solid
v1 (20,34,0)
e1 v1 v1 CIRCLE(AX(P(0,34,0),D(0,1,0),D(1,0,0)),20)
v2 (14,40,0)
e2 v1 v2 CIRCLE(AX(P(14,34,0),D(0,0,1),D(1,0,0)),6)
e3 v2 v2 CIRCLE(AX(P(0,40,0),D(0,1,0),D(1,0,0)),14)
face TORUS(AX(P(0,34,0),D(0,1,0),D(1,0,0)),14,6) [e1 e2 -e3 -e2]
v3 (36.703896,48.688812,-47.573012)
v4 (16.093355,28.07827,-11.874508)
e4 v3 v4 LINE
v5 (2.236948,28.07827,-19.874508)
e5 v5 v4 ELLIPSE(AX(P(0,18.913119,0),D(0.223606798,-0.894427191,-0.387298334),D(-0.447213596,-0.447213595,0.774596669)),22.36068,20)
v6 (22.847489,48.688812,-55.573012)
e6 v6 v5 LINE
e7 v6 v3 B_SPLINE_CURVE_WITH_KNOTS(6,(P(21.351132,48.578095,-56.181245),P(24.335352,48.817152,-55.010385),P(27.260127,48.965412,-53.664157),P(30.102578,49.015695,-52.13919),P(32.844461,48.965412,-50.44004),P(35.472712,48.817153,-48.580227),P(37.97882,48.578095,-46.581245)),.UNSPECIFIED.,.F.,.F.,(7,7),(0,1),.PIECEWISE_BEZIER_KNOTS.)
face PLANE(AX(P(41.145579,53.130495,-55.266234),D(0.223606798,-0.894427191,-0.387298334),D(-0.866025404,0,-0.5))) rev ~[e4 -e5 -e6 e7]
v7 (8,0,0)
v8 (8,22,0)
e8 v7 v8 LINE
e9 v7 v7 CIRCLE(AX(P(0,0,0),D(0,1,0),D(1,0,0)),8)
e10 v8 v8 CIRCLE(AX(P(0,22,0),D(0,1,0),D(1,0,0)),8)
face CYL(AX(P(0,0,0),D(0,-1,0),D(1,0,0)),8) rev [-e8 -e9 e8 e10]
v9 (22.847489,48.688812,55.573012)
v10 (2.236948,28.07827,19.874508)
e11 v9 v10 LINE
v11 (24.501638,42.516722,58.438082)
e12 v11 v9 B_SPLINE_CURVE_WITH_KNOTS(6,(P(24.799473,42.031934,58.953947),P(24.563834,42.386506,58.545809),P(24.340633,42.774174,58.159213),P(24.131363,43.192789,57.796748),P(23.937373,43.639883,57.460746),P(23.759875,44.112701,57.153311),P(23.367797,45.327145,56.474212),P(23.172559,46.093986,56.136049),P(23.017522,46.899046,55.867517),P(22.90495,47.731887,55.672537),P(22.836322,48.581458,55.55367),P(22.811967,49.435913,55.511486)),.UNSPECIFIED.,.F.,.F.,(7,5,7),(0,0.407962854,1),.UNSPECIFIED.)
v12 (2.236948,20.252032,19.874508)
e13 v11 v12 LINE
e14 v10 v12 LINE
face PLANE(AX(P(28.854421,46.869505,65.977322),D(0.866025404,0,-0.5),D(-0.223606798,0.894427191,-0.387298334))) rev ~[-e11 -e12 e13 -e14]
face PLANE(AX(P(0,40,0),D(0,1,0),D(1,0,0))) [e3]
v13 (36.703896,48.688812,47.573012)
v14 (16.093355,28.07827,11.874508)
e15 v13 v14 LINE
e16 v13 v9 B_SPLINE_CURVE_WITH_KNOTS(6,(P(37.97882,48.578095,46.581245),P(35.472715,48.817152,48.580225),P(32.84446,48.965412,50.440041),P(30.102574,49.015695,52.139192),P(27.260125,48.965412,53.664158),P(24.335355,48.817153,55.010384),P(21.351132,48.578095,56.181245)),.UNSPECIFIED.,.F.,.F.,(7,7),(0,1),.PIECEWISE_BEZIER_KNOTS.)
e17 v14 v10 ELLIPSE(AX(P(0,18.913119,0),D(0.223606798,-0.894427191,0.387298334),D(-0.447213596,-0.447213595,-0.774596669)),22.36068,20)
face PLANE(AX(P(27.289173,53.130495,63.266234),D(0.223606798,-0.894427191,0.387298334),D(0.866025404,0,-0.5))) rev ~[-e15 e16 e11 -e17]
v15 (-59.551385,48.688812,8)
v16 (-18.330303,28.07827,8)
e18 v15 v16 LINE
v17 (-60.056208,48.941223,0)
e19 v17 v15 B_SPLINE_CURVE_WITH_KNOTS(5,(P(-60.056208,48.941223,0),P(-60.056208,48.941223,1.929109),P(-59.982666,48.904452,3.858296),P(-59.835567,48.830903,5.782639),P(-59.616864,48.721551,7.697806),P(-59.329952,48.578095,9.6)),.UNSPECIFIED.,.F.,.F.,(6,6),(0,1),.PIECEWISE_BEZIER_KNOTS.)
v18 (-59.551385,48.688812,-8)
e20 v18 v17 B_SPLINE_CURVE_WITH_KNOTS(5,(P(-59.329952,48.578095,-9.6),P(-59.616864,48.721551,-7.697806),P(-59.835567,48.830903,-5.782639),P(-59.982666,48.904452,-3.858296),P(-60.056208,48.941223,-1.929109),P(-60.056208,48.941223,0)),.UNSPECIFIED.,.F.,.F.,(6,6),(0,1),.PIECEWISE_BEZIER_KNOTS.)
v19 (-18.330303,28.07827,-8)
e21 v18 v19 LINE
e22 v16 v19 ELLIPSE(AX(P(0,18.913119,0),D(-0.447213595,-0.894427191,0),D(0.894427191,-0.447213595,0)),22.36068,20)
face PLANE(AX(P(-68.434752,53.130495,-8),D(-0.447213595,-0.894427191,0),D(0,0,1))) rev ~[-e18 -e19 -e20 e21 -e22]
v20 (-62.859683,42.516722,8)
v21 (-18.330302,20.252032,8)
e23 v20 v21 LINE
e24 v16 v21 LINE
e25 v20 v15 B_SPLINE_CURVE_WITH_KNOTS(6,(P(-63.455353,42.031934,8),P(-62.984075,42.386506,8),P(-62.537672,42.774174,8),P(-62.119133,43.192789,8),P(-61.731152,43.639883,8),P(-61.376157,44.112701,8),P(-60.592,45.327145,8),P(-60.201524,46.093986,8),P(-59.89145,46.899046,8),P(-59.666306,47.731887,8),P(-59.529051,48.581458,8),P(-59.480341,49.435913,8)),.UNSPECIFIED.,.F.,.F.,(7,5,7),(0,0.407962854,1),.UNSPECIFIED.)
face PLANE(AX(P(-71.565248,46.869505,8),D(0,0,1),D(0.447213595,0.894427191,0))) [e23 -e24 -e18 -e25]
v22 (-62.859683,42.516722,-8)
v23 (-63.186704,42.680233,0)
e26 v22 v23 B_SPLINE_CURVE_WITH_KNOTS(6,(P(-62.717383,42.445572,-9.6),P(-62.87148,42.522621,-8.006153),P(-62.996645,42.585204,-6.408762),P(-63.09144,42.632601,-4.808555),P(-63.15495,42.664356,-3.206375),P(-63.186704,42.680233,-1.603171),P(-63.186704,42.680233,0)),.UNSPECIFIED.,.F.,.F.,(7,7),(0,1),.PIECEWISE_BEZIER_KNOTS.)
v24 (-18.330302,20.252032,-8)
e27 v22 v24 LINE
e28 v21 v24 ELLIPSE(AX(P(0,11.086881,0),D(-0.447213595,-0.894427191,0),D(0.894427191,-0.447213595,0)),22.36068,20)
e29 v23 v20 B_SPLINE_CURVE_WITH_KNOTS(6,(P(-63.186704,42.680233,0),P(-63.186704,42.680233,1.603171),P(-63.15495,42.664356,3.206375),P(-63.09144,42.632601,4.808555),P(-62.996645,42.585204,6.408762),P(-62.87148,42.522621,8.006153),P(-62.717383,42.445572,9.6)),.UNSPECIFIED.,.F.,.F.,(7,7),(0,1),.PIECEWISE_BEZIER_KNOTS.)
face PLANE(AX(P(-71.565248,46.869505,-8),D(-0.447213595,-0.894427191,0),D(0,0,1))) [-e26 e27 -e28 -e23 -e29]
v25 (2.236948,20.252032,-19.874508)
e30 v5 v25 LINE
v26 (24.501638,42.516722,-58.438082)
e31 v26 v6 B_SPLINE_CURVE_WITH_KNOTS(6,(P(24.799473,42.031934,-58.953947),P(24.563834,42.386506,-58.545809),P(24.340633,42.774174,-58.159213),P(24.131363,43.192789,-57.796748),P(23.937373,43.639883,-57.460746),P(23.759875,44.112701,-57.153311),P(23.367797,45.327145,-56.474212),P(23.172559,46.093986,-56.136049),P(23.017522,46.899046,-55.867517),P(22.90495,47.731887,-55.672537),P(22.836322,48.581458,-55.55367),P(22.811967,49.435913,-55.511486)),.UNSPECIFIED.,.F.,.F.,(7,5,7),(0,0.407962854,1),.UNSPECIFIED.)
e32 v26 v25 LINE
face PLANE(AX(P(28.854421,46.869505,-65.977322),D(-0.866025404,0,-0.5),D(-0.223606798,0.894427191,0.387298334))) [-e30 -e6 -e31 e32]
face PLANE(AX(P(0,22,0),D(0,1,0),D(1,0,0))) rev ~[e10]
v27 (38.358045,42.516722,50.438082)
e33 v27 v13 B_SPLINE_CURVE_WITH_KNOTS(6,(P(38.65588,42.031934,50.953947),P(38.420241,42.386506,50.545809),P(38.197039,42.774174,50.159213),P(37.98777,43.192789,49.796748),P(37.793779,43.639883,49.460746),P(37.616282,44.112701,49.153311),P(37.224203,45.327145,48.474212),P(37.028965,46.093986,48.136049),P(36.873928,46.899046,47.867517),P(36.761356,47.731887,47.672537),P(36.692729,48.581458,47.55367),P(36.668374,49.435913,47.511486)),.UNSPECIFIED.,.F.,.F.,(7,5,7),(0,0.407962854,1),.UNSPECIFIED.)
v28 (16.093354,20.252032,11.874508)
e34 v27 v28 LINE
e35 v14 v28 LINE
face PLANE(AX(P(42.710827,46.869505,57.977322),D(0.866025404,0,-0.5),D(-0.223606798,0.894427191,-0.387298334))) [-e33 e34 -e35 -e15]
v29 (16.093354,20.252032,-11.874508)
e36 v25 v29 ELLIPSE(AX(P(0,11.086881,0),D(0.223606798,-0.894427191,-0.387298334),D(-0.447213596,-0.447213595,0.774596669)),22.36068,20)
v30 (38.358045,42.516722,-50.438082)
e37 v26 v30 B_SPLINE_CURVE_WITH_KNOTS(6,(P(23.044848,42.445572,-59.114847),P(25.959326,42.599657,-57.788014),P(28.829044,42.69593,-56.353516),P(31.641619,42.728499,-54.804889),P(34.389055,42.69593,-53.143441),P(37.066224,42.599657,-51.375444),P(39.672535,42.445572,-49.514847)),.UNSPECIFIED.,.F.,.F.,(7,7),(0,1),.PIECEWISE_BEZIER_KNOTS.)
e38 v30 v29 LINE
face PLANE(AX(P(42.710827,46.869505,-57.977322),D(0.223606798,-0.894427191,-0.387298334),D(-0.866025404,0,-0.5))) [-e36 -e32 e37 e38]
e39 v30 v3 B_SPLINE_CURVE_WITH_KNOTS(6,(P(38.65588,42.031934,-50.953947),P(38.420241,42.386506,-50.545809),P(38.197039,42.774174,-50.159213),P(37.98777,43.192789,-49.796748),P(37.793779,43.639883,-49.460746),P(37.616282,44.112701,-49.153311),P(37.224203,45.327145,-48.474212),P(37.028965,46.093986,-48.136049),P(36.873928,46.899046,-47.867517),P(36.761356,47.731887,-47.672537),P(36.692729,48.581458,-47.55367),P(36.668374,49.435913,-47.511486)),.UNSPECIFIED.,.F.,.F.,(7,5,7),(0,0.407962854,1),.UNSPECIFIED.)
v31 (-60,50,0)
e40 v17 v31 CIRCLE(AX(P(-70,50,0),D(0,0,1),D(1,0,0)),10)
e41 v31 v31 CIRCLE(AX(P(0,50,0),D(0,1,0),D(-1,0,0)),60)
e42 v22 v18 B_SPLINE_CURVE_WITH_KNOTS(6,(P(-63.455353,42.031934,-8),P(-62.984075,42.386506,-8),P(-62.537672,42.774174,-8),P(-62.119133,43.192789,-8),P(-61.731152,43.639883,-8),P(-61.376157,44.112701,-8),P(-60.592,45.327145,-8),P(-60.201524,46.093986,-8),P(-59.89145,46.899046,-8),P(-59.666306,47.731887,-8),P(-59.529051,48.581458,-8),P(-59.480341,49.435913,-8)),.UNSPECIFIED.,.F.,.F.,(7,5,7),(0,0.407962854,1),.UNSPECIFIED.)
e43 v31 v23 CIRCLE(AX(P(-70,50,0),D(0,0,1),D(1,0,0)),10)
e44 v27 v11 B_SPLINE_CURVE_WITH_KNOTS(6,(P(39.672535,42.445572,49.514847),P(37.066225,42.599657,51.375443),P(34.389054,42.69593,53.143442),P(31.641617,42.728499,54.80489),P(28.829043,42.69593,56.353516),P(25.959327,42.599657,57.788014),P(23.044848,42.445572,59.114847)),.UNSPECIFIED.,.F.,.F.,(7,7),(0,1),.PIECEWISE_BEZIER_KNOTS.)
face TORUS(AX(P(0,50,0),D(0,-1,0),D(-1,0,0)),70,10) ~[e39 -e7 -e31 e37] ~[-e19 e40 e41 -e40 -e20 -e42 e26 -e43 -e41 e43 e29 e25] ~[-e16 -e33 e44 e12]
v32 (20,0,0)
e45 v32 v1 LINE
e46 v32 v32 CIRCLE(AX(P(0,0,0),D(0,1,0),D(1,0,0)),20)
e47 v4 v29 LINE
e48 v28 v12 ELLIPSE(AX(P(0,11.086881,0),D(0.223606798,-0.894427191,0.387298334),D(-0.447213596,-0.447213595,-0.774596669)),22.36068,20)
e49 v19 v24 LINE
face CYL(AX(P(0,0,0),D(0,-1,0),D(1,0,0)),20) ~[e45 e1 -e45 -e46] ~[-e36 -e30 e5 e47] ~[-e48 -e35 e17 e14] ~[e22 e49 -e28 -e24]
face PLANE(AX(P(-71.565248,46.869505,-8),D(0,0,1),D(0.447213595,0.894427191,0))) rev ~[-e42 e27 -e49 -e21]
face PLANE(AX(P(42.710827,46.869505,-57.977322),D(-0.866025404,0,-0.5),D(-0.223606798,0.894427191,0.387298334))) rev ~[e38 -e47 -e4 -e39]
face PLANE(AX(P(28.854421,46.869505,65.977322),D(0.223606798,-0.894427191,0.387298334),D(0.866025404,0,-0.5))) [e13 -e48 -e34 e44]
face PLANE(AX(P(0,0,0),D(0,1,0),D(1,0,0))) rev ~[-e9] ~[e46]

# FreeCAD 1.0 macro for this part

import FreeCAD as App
import Part
import Sketcher

V = App.Vector
Q = App.Units.Quantity


def edges_at(feature, points):
    """Names of the edges that pass closest to the given points."""
    edges = feature.Shape.Edges
    near = lambda p: min(range(len(edges)), key=lambda i: edges[i].distToShape(Part.Vertex(*p))[0])
    return sorted({f"Edge{near(p) + 1}" for p in points})

doc = App.newDocument("Part")
body = doc.addObject("PartDesign::Body", "Body")

# Sketch on XZ plane
sketch1 = body.newObject("Sketcher::SketchObject", "Sketch")
sketch1.AttachmentSupport = (doc.getObject("XZ_Plane"), [""])
sketch1.MapMode = "FlatFace"
sketch1.addGeometry(Part.Circle(V(0, 0, 0), V(0, 0, 1), 20), False)
sketch1.addConstraint([
    Sketcher.Constraint("Coincident", 0, 3, -1, 1),
    Sketcher.Constraint("Diameter", 0, Q("40 mm")),
])
pad1 = body.newObject("PartDesign::Pad", "Pad")
pad1.Profile = sketch1
pad1.Length = 40
pad1.Reversed = True

# Sketch on XZ plane
sketch2 = body.newObject("Sketcher::SketchObject", "Sketch001")
sketch2.AttachmentSupport = (doc.getObject("XZ_Plane"), [""])
sketch2.MapMode = "FlatFace"
sketch2.addGeometry(Part.Circle(V(0, 0, 0), V(0, 0, 1), 8), False)
sketch2.addConstraint([
    Sketcher.Constraint("Coincident", 0, 3, -1, 1),
    Sketcher.Constraint("Diameter", 0, Q("16 mm")),
])
pocket1 = body.newObject("PartDesign::Pocket", "Pocket")
pocket1.Profile = sketch2
pocket1.Length = 22
body2 = doc.addObject("PartDesign::Body", "Body001")

# Sketch on XY plane
sketch3 = body2.newObject("Sketcher::SketchObject", "Sketch002")
sketch3.AttachmentSupport = (doc.getObject("XY_Plane001"), [""])
sketch3.MapMode = "FlatFace"
sketch3.addGeometry(Part.Circle(V(-70, 50, 0), V(0, 0, 1), 10), False)
sketch3.addConstraint([
    Sketcher.Constraint("Diameter", 0, Q("20 mm")),
    Sketcher.Constraint("DistanceX", 0, 3, -1, 1, Q("70 mm")),
    Sketcher.Constraint("DistanceY", -1, 1, 0, 3, Q("50 mm")),
])
revolution = body2.newObject("PartDesign::Revolution", "Revolution")
revolution.Profile = sketch3
revolution.ReferenceAxis = (sketch3, ["V_Axis"])
revolution.Angle = 360
body.AllowCompound = True
doc.recompute()

boolean = body.newObject("PartDesign::Boolean", "Boolean")
boolean.Type = "Fuse"
boolean.addObjects([body2])

# Sketch on an angled plane
sketch4 = body.newObject("Sketcher::SketchObject", "Sketch003")
sketch4.Placement = App.Placement(V(-70, 50, 0), App.Rotation(V(0, 0, 1), V(0.447213595, 0.894427191, 0), V(-0.894427191, 0.447213595, 0), "ZXY"))
sketch4.addGeometry([
    Part.LineSegment(V(-8, 3, 0), V(-8, -3, 0)),
    Part.LineSegment(V(-8, -3, 0), V(8, -3, 0)),
    Part.LineSegment(V(8, -3, 0), V(8, 3, 0)),
    Part.LineSegment(V(8, 3, 0), V(-8, 3, 0)),
], False)
sketch4.addConstraint([
    Sketcher.Constraint("Coincident", 0, 2, 1, 1),
    Sketcher.Constraint("Coincident", 1, 2, 2, 1),
    Sketcher.Constraint("Coincident", 2, 2, 3, 1),
    Sketcher.Constraint("Coincident", 3, 2, 0, 1),
    Sketcher.Constraint("Vertical", 0),
    Sketcher.Constraint("Horizontal", 1),
    Sketcher.Constraint("Vertical", 2),
    Sketcher.Constraint("Horizontal", 3),
    Sketcher.Constraint("Symmetric", 0, 2, 2, 2, -1, 1),
    Sketcher.Constraint("DistanceX", 1, 1, 1, 2, Q("16 mm")),
    Sketcher.Constraint("DistanceY", 0, 2, 0, 1, Q("7 mm")),
])
pad2 = body.newObject("PartDesign::Pad", "Pad001")
pad2.Profile = sketch4
pad2.Length = 59.518478
pad2.Reversed = True
doc.recompute()

polarpattern = body.newObject("PartDesign::PolarPattern", "PolarPattern")
polarpattern.Originals = [pad2]
polarpattern.Axis = (doc.getObject("Y_Axis"), [""])
polarpattern.Angle = 360
polarpattern.Occurrences = 3
body.Tip = polarpattern
doc.recompute()

fillet = body.newObject("PartDesign::Fillet", "Fillet")
fillet.Base = (polarpattern, edges_at(polarpattern, [(-20, 40, 0)]))
fillet.Radius = 6

doc.recompute()
